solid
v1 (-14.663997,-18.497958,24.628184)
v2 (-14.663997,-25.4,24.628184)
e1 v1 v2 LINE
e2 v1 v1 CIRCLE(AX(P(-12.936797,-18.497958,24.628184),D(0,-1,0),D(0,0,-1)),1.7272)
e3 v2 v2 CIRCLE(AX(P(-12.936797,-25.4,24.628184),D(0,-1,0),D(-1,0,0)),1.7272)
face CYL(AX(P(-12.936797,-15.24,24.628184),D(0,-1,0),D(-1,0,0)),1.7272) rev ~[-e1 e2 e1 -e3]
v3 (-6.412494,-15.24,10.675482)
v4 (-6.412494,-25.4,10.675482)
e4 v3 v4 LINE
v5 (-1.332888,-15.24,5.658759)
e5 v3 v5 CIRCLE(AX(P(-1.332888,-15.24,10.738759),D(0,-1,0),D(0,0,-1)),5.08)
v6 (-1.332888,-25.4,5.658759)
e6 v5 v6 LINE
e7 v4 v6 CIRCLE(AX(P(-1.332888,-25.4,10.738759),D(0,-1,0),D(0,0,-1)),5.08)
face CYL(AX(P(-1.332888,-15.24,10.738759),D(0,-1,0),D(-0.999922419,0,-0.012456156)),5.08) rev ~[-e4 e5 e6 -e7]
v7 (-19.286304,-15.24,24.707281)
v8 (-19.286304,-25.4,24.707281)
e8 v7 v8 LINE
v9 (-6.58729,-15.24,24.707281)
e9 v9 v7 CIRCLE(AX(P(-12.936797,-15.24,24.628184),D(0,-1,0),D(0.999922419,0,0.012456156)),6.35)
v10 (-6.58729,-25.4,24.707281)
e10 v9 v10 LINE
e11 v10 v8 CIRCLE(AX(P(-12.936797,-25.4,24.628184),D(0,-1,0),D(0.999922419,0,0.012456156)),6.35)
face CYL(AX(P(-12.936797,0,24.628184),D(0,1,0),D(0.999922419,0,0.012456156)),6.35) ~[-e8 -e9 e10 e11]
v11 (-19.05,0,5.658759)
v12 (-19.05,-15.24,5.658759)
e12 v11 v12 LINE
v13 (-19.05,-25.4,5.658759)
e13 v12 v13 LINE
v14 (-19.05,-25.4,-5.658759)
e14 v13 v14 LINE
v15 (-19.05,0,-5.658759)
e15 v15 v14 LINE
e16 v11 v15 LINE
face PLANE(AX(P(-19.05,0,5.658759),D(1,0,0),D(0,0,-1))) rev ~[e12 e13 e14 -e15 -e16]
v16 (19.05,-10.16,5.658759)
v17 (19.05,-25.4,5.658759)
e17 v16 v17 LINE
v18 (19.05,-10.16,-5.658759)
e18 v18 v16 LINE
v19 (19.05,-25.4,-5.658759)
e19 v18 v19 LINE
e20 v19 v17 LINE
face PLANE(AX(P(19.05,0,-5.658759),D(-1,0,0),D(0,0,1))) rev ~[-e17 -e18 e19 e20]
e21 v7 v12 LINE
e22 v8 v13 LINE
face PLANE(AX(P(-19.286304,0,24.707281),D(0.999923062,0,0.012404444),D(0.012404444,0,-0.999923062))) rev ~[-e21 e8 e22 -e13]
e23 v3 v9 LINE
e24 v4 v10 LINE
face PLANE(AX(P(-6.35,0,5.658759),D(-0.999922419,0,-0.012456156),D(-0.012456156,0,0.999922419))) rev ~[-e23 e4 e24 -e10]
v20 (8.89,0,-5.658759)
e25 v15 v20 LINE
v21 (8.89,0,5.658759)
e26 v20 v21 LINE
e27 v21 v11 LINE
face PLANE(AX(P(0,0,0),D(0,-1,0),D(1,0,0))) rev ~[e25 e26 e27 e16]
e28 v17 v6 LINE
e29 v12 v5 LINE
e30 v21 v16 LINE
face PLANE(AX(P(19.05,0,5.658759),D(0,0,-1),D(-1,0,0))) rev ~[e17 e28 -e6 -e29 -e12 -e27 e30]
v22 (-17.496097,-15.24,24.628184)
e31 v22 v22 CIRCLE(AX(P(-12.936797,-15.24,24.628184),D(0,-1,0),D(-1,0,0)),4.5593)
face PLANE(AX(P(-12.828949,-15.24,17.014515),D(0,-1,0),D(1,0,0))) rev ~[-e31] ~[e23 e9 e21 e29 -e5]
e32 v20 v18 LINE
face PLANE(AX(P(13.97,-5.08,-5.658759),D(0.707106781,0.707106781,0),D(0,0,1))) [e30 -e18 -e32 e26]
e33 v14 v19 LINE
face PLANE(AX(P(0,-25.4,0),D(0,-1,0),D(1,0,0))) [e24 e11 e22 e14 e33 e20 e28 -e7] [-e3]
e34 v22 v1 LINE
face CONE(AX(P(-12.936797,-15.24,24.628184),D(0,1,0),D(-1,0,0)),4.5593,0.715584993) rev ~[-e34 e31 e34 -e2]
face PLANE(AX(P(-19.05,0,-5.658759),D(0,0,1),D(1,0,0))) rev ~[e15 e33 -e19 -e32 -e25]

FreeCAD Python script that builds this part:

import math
import FreeCAD as App
import Part
import Sketcher
Q = App.Units.Quantity


def edges_at(feature, points):
    """Names of the edges that pass closest to the given points."""
    edges = feature.Shape.Edges
    near = lambda p: min(range(len(edges)), key=lambda i: edges[i].distToShape(Part.Vertex(*p))[0])
    return sorted({f"Edge{near(p) + 1}" for p in points})

doc = App.newDocument("Part")
body = doc.addObject("PartDesign::Body", "Body")

# Sketch on XZ plane
sketch1 = doc.addObject("Sketcher::SketchObject", "Sketch")
body.addObject(sketch1)
sketch1.AttachmentSupport = (doc.XZ_Plane, [""])
sketch1.MapMode = "FlatFace"
sketch1.addGeometry([
    Part.LineSegment(App.Vector(19.05, -5.658759, 0), App.Vector(19.05, 5.658759, 0)),  # 0
    Part.LineSegment(App.Vector(19.05, 5.658759, 0), App.Vector(-6.35, 5.658759, 0)),  # 1
    Part.LineSegment(App.Vector(-6.35, 5.658759, 0), App.Vector(-6.58729, 24.707281, 0)),  # 2
    Part.ArcOfCircle(Part.Circle(App.Vector(-12.936797, 24.628184, 0), App.Vector(0, 0, 1), 6.35), math.radians(0.713704), math.radians(179.286296)),  # 3
    Part.LineSegment(App.Vector(-19.286304, 24.707281, 0), App.Vector(-19.05, 5.658759, 0)),  # 4
    Part.LineSegment(App.Vector(-19.05, 5.658759, 0), App.Vector(-19.05, -5.658759, 0)),  # 5
    Part.LineSegment(App.Vector(-19.05, -5.658759, 0), App.Vector(19.05, -5.658759, 0)),  # 6
], False)
sketch1.addConstraint([
    Sketcher.Constraint("Coincident", 0, 2, 1, 1),
    Sketcher.Constraint("Coincident", 1, 2, 2, 1),
    Sketcher.Constraint("Tangent", 2, 2, 3, 1),
    Sketcher.Constraint("Coincident", 3, 2, 4, 1),
    Sketcher.Constraint("Coincident", 4, 2, 5, 1),
    Sketcher.Constraint("Coincident", 5, 2, 6, 1),
    Sketcher.Constraint("Coincident", 6, 2, 0, 1),
    Sketcher.Constraint("Vertical", 0),
    Sketcher.Constraint("Horizontal", 1),
    Sketcher.Constraint("Vertical", 5),
    Sketcher.Constraint("Horizontal", 6),
    Sketcher.Constraint("Symmetric", 0, 2, 5, 2, -1, 1),
    Sketcher.Constraint("Horizontal", 2, 2, 3, 2),
    Sketcher.Constraint("Horizontal", 1, 2, 4, 2),
    Sketcher.Constraint("DistanceX", 1, 2, 1, 1, Q("1 in")),
    Sketcher.Constraint("Radius", 3, Q("0.25 in")),
    Sketcher.Constraint("DistanceX", 6, 1, 6, 2, Q("1.5 in")),
    Sketcher.Constraint("Distance", 2, Q("0.75 in")),
    Sketcher.Constraint("DistanceY", 0, 1, 0, 2, 11.317518),
    Sketcher.Constraint("DistanceX", 2, 2, -1, 1, 6.58729),
])
pad1 = doc.addObject("PartDesign::Pad", "Pad")
body.addObject(pad1)
pad1.Profile = sketch1
pad1.Length = Q("1 in")

# Sketch on XZ plane
sketch2 = doc.addObject("Sketcher::SketchObject", "Sketch001")
body.addObject(sketch2)
sketch2.AttachmentSupport = (doc.XZ_Plane, [""])
sketch2.MapMode = "FlatFace"
sketch2.addGeometry([
    Part.LineSegment(App.Vector(-19.05, 5.658759, 0), App.Vector(-6.35, 5.658759, 0)),
    Part.LineSegment(App.Vector(-6.35, 5.658759, 0), App.Vector(-6.58729, 24.707281, 0)),
    Part.ArcOfCircle(Part.Circle(App.Vector(-12.936797, 24.628184, 0), App.Vector(0, 0, 1), 6.35), math.radians(0.713704), math.radians(179.286296)),
    Part.LineSegment(App.Vector(-19.286304, 24.707281, 0), App.Vector(-19.05, 5.658759, 0)),
], False)
sketch2.addConstraint([
    Sketcher.Constraint("Coincident", 0, 2, 1, 1),
    Sketcher.Constraint("Tangent", 1, 2, 2, 1),
    Sketcher.Constraint("Coincident", 2, 2, 3, 1),
    Sketcher.Constraint("Coincident", 3, 2, 0, 1),
    Sketcher.Constraint("Horizontal", 0),
    Sketcher.Constraint("Horizontal", 1, 2, 2, 2),
    Sketcher.Constraint("Radius", 2, Q("0.25 in")),
    Sketcher.Constraint("DistanceX", 0, 1, 0, 2, Q("0.5 in")),
    Sketcher.Constraint("Distance", 1, Q("0.75 in")),
    Sketcher.Constraint("DistanceX", 0, 2, -1, 1, Q("0.25 in")),
    Sketcher.Constraint("DistanceY", -1, 1, 0, 2, 5.658759),
    Sketcher.Constraint("DistanceX", 1, 2, -1, 1, 6.58729),
])
pocket1 = doc.addObject("PartDesign::Pocket", "Pocket")
body.addObject(pocket1)
pocket1.Profile = sketch2
pocket1.Length = Q("0.6 in")
pocket1.Reversed = True

# Sketch on XZ plane
sketch3 = doc.addObject("Sketcher::SketchObject", "Sketch002")
body.addObject(sketch3)
sketch3.AttachmentSupport = (doc.XZ_Plane, [""])
sketch3.MapMode = "FlatFace"
sketch3.AttachmentOffset = App.Placement(App.Vector(0, 0, 0.6 * 25.4), App.Rotation())
sketch3.addGeometry(Part.Circle(App.Vector(-12.936797, 24.628184, 0), App.Vector(0, 0, 1), 1.7272), False)
sketch3.addConstraint([
    Sketcher.Constraint("Diameter", 0, Q("0.136 in")),
    Sketcher.Constraint("DistanceX", 0, 3, -1, 1, 12.936797),
    Sketcher.Constraint("DistanceY", -1, 1, 0, 3, 24.628184),
])
doc.recompute()
hole = doc.addObject("PartDesign::Hole", "Hole")
body.addObject(hole)
hole.Profile = sketch3
hole.ThreadType = "None"
hole.Diameter = Q("0.136 in")
hole.DepthType = "ThroughAll"
hole.HoleCutType = "Countersink"
hole.HoleCutDiameter = Q("0.359 in")
hole.HoleCutCountersinkAngle = 82
hole.Reversed = True
doc.recompute()

fillet = doc.addObject("PartDesign::Fillet", "Fillet")
body.addObject(fillet)
fillet.Base = (hole, edges_at(hole, [(-6.35, -20.32, 5.659)]))
fillet.Radius = Q("0.2 in")
doc.recompute()

chamfer = doc.addObject("PartDesign::Chamfer", "Chamfer")
body.addObject(chamfer)
chamfer.Base = (fillet, edges_at(fillet, [(19.05, 0, 0)]))
chamfer.Size = Q("0.4 in")

doc.recompute()
